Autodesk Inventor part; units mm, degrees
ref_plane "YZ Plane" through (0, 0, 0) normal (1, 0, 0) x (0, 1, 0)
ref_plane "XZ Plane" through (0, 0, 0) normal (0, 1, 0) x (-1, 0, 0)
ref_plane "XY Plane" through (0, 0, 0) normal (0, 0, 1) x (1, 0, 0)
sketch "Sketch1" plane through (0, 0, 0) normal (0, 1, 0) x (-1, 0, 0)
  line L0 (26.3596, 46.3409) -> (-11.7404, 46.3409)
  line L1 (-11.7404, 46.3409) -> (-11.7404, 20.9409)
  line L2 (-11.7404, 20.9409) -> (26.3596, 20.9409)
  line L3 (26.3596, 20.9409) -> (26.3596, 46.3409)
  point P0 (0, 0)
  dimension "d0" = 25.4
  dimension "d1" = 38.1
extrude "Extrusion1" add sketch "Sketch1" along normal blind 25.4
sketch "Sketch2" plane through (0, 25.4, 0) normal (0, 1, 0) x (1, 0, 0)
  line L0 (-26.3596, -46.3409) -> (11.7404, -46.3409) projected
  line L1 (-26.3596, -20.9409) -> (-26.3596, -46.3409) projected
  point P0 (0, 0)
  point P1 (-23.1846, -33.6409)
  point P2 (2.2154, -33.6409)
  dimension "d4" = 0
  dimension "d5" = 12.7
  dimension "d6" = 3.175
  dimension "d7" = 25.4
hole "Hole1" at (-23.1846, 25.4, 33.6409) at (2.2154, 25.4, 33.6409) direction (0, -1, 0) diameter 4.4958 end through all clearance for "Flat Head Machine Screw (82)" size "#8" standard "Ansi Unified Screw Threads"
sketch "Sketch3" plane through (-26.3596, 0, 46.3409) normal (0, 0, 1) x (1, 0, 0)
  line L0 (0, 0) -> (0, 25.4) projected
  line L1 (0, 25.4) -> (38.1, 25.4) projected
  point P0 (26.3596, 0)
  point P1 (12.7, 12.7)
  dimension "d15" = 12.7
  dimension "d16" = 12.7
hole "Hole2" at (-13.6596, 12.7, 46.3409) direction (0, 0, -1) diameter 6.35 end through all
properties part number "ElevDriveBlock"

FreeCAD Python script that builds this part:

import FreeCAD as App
import Part
import Sketcher

V = App.Vector
Q = App.Units.Quantity


def add_polygon(sketch, points):
    """Adds a closed chain of lines whose ends are joined by coincident constraints."""
    first, n = sketch.GeometryCount, len(points)
    for a, b in zip(points, points[1:] + points[:1]):
        sketch.addGeometry(Part.LineSegment(App.Vector(*a, 0), App.Vector(*b, 0)), False)
    for i in range(n):
        sketch.addConstraint(Sketcher.Constraint("Coincident", first + i, 2, first + (i + 1) % n, 1))

doc = App.newDocument("Part")
body = doc.addObject("PartDesign::Body", "Body")

# Sketch on XZ plane
sketch1 = body.newObject("Sketcher::SketchObject", "Sketch")
sketch1.AttachmentSupport = (doc.getObject("XZ_Plane"), [""])
sketch1.MapMode = "FlatFace"
add_polygon(sketch1, [(-26, 21), (-26, 46), (12, 46), (12, 21)])  # lines 0-3
sketch1.addConstraint([
    Sketcher.Constraint("Vertical", 0),
    Sketcher.Constraint("Horizontal", 1),
    Sketcher.Constraint("Vertical", 2),
    Sketcher.Constraint("Horizontal", 3),
    Sketcher.Constraint("DistanceY", 0, 1, 0, 2, Q("1 in")),
    Sketcher.Constraint("DistanceX", 1, 1, 1, 2, Q("1.5 in")),
    Sketcher.Constraint("DistanceX", 0, 2, -1, 1, 26.3596),
    Sketcher.Constraint("DistanceY", -1, 1, 0, 2, 46.341),
])
pad1 = body.newObject("PartDesign::Pad", "Pad")
pad1.Profile = sketch1
pad1.Length = Q("1 in")
pad1.Reversed = True

# Sketch on XZ plane
sketch2 = body.newObject("Sketcher::SketchObject", "Sketch001")
sketch2.AttachmentSupport = (doc.getObject("XZ_Plane"), [""])
sketch2.MapMode = "FlatFace"
sketch2.AttachmentOffset = App.Placement(V(0, 0, -1 * 25.4), App.Rotation())
sketch2.addGeometry([
    Part.Circle(V(-23.2, 33.6, 0), V(0, 0, 1), 2.2),
    Part.Circle(V(2.2, 33.6, 0), V(0, 0, 1), 2.2),
], False)
sketch2.addConstraint([
    Sketcher.Constraint("Equal", 0, 1),
    Sketcher.Constraint("Horizontal", 0, 3, 1, 3),
    Sketcher.Constraint("Diameter", 0, Q("0.177 in")),
    Sketcher.Constraint("DistanceX", 0, 3, 1, 3, Q("1 in")),
    Sketcher.Constraint("DistanceX", 0, 3, -1, 1, 23.1846),
    Sketcher.Constraint("DistanceY", -1, 1, 0, 3, 33.641),
])
doc.recompute()
hole = body.newObject("PartDesign::Hole", "Hole")
hole.Profile = sketch2
hole.ThreadType = "None"
hole.Diameter = Q("0.177 in")
hole.DepthType = "ThroughAll"
hole.Reversed = True

# Sketch on XY plane
sketch3 = body.newObject("Sketcher::SketchObject", "Sketch002")
sketch3.AttachmentSupport = (doc.getObject("XY_Plane"), [""])
sketch3.MapMode = "FlatFace"
sketch3.AttachmentOffset = App.Placement(V(0, 0, 46.3409), App.Rotation())
sketch3.addGeometry(Part.Circle(V(-13.7, 12.7, 0), V(0, 0, 1), 3.2), False)
sketch3.addConstraint([
    Sketcher.Constraint("Diameter", 0, Q("0.25 in")),
    Sketcher.Constraint("DistanceY", -1, 1, 0, 3, Q("0.5 in")),
    Sketcher.Constraint("DistanceX", 0, 3, -1, 1, 13.6596),
])
doc.recompute()
hole2 = body.newObject("PartDesign::Hole", "Hole001")
hole2.Profile = sketch3
hole2.ThreadType = "None"
hole2.Diameter = Q("0.25 in")
hole2.DepthType = "ThroughAll"

doc.recompute()
